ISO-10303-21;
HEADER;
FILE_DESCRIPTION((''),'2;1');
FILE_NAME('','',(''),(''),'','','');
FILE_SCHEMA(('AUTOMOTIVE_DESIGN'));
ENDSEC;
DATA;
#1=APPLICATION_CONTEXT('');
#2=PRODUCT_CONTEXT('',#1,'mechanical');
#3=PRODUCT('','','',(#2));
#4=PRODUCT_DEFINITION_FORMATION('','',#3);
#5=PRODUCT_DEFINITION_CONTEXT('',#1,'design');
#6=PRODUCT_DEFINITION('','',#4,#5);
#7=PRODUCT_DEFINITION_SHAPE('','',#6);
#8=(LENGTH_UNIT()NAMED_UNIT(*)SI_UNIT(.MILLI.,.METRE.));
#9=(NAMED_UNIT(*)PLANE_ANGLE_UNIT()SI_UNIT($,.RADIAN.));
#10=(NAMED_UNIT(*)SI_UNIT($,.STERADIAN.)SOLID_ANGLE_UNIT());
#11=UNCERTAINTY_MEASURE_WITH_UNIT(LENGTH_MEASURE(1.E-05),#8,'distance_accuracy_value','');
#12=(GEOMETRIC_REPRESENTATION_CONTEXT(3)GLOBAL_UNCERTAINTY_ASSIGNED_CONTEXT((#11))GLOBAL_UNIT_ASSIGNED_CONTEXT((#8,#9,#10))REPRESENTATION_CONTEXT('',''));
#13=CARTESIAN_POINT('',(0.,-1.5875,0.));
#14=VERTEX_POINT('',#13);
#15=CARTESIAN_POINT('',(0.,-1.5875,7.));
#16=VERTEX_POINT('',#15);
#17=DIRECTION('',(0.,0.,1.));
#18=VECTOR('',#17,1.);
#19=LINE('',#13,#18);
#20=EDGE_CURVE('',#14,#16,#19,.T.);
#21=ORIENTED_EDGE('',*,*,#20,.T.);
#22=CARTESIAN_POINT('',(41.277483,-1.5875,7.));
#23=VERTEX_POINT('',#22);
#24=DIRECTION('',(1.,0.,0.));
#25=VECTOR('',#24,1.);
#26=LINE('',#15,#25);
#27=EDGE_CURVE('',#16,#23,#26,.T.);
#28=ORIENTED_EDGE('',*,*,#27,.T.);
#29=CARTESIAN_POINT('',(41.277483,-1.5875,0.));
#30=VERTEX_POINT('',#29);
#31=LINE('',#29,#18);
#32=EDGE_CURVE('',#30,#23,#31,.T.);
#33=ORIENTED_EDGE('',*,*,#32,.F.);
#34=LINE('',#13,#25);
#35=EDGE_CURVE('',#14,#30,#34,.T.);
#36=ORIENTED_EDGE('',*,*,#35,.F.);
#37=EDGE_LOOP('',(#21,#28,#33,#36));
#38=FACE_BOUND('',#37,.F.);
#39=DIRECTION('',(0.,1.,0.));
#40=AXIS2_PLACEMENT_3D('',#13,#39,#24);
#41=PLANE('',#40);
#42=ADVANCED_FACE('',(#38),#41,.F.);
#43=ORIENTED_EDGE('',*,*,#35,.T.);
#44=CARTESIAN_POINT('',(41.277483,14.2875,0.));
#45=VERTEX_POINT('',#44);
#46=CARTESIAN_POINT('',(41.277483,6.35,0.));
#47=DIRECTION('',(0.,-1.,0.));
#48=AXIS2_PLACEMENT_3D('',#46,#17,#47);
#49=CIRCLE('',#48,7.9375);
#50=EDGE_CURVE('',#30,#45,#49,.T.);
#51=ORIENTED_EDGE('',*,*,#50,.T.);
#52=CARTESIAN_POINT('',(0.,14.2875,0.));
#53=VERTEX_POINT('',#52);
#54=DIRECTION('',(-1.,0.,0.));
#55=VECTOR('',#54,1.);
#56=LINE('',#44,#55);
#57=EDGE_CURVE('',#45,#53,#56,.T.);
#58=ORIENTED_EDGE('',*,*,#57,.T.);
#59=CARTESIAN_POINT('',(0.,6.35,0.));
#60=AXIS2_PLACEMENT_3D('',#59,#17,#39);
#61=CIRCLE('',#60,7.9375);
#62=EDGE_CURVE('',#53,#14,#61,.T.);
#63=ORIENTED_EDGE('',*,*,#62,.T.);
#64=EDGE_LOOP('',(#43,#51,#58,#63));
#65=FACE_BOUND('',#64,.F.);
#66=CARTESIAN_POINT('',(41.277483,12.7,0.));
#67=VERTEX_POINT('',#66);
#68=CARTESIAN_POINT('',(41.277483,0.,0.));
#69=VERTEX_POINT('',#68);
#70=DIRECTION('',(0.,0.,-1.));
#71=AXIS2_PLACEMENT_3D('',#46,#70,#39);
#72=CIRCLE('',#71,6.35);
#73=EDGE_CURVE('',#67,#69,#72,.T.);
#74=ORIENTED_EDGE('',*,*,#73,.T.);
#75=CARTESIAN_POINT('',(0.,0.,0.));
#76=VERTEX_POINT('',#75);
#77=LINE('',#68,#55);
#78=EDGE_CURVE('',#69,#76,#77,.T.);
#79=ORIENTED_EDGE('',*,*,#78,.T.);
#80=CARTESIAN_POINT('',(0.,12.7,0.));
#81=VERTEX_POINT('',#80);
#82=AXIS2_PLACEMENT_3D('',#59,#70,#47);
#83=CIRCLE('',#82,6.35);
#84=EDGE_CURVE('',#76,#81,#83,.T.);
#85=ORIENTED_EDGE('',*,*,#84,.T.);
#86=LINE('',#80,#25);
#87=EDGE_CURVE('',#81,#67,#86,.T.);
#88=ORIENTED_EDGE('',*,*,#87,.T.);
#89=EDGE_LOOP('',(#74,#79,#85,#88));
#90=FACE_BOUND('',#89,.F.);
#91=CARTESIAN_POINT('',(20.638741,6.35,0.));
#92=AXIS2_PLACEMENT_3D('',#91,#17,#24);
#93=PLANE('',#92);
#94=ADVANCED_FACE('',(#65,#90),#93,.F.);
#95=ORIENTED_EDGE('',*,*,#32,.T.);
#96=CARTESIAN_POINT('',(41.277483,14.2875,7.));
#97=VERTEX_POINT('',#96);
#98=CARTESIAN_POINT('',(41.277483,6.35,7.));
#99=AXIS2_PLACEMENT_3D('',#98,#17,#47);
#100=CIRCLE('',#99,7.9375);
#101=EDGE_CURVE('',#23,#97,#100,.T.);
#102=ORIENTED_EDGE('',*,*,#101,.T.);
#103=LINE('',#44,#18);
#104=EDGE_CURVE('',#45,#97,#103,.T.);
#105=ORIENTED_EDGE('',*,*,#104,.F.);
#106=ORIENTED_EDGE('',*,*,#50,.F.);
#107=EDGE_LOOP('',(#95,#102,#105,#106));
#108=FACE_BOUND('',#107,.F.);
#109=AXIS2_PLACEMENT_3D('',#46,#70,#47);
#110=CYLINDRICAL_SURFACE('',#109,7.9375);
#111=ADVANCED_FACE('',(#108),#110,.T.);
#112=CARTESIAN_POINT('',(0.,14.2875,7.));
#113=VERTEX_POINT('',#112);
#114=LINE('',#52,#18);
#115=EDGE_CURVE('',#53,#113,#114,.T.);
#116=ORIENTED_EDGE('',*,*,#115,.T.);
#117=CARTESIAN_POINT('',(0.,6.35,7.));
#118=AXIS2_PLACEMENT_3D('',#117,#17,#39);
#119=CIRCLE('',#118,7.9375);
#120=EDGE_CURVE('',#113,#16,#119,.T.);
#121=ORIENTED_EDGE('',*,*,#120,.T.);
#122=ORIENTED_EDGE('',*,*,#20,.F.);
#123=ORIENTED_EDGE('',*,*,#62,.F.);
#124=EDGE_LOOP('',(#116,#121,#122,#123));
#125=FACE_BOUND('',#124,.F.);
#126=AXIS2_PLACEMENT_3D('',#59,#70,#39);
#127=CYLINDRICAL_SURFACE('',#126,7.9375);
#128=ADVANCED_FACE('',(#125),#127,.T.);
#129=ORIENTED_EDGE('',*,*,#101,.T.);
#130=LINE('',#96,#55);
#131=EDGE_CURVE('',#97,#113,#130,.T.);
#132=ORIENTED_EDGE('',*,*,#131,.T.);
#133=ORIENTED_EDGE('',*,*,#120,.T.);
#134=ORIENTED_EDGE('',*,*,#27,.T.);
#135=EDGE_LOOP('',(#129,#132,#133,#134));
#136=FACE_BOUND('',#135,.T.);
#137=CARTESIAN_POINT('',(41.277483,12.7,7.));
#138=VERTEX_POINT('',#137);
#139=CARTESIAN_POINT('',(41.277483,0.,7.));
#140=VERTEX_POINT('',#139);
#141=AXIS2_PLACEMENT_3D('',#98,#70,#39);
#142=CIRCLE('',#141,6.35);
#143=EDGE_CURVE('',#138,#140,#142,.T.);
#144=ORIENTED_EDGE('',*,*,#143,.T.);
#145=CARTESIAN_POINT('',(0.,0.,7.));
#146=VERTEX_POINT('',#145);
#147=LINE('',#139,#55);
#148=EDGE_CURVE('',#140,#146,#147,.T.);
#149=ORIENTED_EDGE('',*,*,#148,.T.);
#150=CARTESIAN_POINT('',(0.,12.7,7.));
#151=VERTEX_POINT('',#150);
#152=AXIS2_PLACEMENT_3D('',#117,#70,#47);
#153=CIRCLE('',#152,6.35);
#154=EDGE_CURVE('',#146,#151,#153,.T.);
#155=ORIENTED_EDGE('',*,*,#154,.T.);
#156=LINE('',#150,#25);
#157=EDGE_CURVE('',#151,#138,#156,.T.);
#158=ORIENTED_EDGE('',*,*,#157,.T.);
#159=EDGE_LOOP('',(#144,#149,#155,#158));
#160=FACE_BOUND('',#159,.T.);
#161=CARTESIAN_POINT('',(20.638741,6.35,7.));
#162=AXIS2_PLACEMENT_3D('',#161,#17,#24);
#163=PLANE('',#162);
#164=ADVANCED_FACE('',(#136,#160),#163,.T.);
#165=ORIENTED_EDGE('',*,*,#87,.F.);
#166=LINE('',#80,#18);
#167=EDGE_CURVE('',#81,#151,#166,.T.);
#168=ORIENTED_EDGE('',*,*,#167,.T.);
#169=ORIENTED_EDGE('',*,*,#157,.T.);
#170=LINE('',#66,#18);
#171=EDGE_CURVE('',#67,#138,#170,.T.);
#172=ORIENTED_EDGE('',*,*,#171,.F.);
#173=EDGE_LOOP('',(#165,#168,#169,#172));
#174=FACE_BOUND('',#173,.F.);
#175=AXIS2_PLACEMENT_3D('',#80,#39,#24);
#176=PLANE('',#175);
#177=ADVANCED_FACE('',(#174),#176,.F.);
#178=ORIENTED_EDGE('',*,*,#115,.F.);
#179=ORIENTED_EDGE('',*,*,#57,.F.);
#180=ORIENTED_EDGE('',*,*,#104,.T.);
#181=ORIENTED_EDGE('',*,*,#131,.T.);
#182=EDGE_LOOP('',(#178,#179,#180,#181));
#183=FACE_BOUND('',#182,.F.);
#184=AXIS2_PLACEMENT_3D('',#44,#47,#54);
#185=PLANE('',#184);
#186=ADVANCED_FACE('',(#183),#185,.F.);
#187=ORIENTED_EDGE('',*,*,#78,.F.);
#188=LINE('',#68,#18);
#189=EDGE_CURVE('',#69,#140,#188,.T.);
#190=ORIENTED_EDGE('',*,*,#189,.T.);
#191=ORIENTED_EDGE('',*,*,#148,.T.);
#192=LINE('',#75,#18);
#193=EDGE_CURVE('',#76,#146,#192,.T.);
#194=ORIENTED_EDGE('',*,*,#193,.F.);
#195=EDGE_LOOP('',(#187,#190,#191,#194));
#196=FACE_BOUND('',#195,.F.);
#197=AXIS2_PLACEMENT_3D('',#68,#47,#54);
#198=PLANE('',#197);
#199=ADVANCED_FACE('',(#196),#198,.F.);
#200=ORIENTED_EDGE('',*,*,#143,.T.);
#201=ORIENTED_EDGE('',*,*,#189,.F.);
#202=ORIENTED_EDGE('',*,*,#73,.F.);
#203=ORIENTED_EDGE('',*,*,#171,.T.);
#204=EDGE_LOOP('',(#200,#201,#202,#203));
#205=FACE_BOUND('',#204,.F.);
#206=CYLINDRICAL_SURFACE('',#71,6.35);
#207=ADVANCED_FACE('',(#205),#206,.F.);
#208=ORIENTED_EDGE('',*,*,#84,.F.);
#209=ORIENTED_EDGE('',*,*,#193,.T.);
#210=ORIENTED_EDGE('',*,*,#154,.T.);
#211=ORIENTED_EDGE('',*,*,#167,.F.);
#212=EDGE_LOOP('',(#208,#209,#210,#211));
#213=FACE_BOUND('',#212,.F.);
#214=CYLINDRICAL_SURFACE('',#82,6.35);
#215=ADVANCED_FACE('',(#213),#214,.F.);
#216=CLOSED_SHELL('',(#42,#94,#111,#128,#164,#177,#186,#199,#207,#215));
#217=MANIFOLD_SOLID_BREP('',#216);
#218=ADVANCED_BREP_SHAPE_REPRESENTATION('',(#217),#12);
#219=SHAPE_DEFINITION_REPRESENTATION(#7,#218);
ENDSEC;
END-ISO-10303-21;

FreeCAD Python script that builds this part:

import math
import FreeCAD as App
import Part
import Sketcher
Q = App.Units.Quantity

doc = App.newDocument("Part")
body = doc.addObject("PartDesign::Body", "Body")

# Sketch on XY plane
sketch1 = body.newObject("Sketcher::SketchObject", "Sketch")
sketch1.AttachmentSupport = (doc.getObject("XY_Plane"), [""])
sketch1.MapMode = "FlatFace"
sketch1.addGeometry(Part.LineSegment(App.Vector(41, 14, 0), App.Vector(0, 14, 0)), False)
sketch1.addGeometry(Part.ArcOfCircle(Part.Circle(App.Vector(0, 6, 0), App.Vector(0, 0, 1), 8), math.radians(90), math.radians(270)), False)
sketch1.addGeometry(Part.LineSegment(App.Vector(0, -2, 0), App.Vector(41, -2, 0)), False)
sketch1.addGeometry(Part.ArcOfCircle(Part.Circle(App.Vector(41, 6, 0), App.Vector(0, 0, 1), 8), math.radians(-90), math.radians(90)), False)
sketch1.addGeometry(Part.ArcOfCircle(Part.Circle(App.Vector(41, 6, 0), App.Vector(0, 0, 1), 6), math.radians(-90), math.radians(90)), False)
sketch1.addGeometry(Part.LineSegment(App.Vector(41, 0, 0), App.Vector(0, 0, 0)), False)
sketch1.addGeometry(Part.ArcOfCircle(Part.Circle(App.Vector(0, 6, 0), App.Vector(0, 0, 1), 6), math.radians(90), math.radians(270)), False)
sketch1.addGeometry(Part.LineSegment(App.Vector(0, 13, 0), App.Vector(41, 13, 0)), False)
sketch1.addConstraint(Sketcher.Constraint("Tangent", 0, 2, 1, 1))
sketch1.addConstraint(Sketcher.Constraint("Tangent", 1, 2, 2, 1))
sketch1.addConstraint(Sketcher.Constraint("Tangent", 2, 2, 3, 1))
sketch1.addConstraint(Sketcher.Constraint("Tangent", 3, 2, 0, 1))
sketch1.addConstraint(Sketcher.Constraint("Tangent", 4, 1, 5, 1))
sketch1.addConstraint(Sketcher.Constraint("Tangent", 5, 2, 6, 2))
sketch1.addConstraint(Sketcher.Constraint("Tangent", 6, 1, 7, 1))
sketch1.addConstraint(Sketcher.Constraint("Tangent", 7, 2, 4, 2))
sketch1.addConstraint(Sketcher.Constraint("Horizontal", 0))
sketch1.addConstraint(Sketcher.Constraint("Horizontal", 2))
sketch1.addConstraint(Sketcher.Constraint("Horizontal", 5))
sketch1.addConstraint(Sketcher.Constraint("Horizontal", 7))
sketch1.addConstraint(Sketcher.Constraint("Coincident", 5, 2, -1, 1))
sketch1.addConstraint(Sketcher.Constraint("Coincident", 4, 3, 3, 3))
sketch1.addConstraint(Sketcher.Constraint("PointOnObject", 1, 3, -2))
sketch1.addConstraint(Sketcher.Constraint("Radius", 4, Q("0.25 in")))
sketch1.addConstraint(Sketcher.Constraint("Radius", 1, Q("0.3125 in")))
sketch1.addConstraint(Sketcher.Constraint("DistanceX", 0, 2, 0, 1, 41.277483))
pad1 = body.newObject("PartDesign::Pad", "Pad")
pad1.Profile = sketch1
pad1.Length = 7

doc.recompute()
